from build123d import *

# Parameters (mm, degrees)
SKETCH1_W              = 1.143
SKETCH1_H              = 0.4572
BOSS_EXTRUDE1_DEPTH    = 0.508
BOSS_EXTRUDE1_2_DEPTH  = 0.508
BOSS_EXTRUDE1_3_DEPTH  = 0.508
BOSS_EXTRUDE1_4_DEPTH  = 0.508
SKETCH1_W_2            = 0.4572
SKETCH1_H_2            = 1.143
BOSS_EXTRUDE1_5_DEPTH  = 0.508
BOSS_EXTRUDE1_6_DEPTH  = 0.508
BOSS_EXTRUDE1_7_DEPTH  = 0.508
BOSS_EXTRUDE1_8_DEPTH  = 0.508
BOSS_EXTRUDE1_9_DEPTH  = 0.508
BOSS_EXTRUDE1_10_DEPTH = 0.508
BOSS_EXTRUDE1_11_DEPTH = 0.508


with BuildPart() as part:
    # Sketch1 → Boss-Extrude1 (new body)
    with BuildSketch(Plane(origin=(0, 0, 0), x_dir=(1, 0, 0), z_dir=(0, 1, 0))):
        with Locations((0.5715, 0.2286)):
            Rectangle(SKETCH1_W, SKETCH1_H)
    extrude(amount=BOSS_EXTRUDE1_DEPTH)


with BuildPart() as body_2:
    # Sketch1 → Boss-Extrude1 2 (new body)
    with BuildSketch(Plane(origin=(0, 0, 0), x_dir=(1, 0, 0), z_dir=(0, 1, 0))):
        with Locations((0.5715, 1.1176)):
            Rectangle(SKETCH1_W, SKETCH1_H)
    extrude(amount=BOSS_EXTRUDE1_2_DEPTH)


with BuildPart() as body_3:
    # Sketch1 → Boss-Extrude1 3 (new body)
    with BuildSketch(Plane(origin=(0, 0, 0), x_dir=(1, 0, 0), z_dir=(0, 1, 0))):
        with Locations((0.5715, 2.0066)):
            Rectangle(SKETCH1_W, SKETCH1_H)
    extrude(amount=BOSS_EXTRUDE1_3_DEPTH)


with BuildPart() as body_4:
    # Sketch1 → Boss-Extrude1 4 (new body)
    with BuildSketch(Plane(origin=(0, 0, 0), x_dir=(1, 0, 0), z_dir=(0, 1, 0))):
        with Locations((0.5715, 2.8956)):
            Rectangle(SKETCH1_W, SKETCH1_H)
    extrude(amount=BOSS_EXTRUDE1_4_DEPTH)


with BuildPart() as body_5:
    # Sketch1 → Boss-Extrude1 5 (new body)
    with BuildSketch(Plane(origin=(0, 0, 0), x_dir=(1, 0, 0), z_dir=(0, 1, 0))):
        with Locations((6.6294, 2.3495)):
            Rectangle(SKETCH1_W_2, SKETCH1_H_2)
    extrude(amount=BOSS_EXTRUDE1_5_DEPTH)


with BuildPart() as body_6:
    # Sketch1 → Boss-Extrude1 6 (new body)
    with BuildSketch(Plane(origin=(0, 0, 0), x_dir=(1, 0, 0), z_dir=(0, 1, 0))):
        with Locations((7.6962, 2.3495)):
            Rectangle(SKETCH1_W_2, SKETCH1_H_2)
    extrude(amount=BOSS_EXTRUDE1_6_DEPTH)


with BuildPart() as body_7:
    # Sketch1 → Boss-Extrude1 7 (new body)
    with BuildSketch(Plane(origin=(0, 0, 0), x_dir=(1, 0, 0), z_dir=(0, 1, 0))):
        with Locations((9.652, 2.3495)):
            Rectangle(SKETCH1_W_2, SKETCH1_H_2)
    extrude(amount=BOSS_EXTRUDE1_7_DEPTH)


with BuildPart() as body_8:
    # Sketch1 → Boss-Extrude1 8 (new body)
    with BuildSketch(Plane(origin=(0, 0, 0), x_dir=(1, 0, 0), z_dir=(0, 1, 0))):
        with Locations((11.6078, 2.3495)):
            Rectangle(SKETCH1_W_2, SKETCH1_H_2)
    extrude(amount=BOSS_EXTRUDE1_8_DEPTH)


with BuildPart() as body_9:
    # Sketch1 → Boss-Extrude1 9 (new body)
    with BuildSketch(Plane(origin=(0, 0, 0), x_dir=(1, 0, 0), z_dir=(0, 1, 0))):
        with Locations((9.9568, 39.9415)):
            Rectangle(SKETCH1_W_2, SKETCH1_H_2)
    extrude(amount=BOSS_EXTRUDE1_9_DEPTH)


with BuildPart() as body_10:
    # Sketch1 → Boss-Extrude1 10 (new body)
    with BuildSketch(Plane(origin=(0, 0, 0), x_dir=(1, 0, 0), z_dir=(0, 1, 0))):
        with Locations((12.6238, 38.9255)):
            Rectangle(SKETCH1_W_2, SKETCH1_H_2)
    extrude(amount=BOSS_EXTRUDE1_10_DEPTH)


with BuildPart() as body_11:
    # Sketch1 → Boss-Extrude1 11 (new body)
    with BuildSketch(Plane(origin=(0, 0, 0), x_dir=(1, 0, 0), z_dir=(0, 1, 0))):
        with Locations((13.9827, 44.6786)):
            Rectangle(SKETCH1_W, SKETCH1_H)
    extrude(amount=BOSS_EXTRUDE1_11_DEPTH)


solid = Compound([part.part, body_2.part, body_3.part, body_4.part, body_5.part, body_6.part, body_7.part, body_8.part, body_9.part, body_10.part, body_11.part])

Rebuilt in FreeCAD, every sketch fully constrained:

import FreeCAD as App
import Part
import Sketcher

V = App.Vector
Q = App.Units.Quantity

doc = App.newDocument("Part")
body = doc.addObject("PartDesign::Body", "Body")

# Sketch on XZ plane
sketch1 = doc.addObject("Sketcher::SketchObject", "Sketch")
body.addObject(sketch1)
sketch1.AttachmentSupport = (doc.XZ_Plane, [""])
sketch1.MapMode = "FlatFace"
sketch1.addGeometry(Part.LineSegment(V(0, -0.46, 0), V(0, 0, 0)), False)
sketch1.addGeometry(Part.LineSegment(V(0, 0, 0), V(1.14, 0, 0)), False)
sketch1.addGeometry(Part.LineSegment(V(1.14, 0, 0), V(1.14, -0.46, 0)), False)
sketch1.addGeometry(Part.LineSegment(V(1.14, -0.46, 0), V(0, -0.46, 0)), False)
sketch1.addConstraint(Sketcher.Constraint("Coincident", 0, 2, 1, 1))
sketch1.addConstraint(Sketcher.Constraint("Coincident", 1, 2, 2, 1))
sketch1.addConstraint(Sketcher.Constraint("Coincident", 2, 2, 3, 1))
sketch1.addConstraint(Sketcher.Constraint("Coincident", 3, 2, 0, 1))
sketch1.addConstraint(Sketcher.Constraint("Vertical", 0))
sketch1.addConstraint(Sketcher.Constraint("Horizontal", 1))
sketch1.addConstraint(Sketcher.Constraint("Vertical", 2))
sketch1.addConstraint(Sketcher.Constraint("Horizontal", 3))
sketch1.addConstraint(Sketcher.Constraint("Coincident", 0, 2, -1, 1))
sketch1.addConstraint(Sketcher.Constraint("DistanceX", 1, 1, 1, 2, Q("0.045 in")))
sketch1.addConstraint(Sketcher.Constraint("DistanceY", 0, 1, 0, 2, Q("0.018 in")))
pad1 = doc.addObject("PartDesign::Pad", "Pad")
body.addObject(pad1)
pad1.Profile = sketch1
pad1.Length = Q("0.02 in")
pad1.Reversed = True
body2 = doc.addObject("PartDesign::Body", "Body001")

# Sketch on XZ plane
sketch2 = doc.addObject("Sketcher::SketchObject", "Sketch001")
body2.addObject(sketch2)
sketch2.AttachmentSupport = (doc.getObject("XZ_Plane001"), [""])
sketch2.MapMode = "FlatFace"
sketch2.addGeometry(Part.LineSegment(V(0, -1.35, 0), V(0, -0.89, 0)), False)
sketch2.addGeometry(Part.LineSegment(V(0, -0.89, 0), V(1.14, -0.89, 0)), False)
sketch2.addGeometry(Part.LineSegment(V(1.14, -0.89, 0), V(1.14, -1.35, 0)), False)
sketch2.addGeometry(Part.LineSegment(V(1.14, -1.35, 0), V(0, -1.35, 0)), False)
sketch2.addConstraint(Sketcher.Constraint("Coincident", 0, 2, 1, 1))
sketch2.addConstraint(Sketcher.Constraint("Coincident", 1, 2, 2, 1))
sketch2.addConstraint(Sketcher.Constraint("Coincident", 2, 2, 3, 1))
sketch2.addConstraint(Sketcher.Constraint("Coincident", 3, 2, 0, 1))
sketch2.addConstraint(Sketcher.Constraint("Vertical", 0))
sketch2.addConstraint(Sketcher.Constraint("Horizontal", 1))
sketch2.addConstraint(Sketcher.Constraint("Vertical", 2))
sketch2.addConstraint(Sketcher.Constraint("Horizontal", 3))
sketch2.addConstraint(Sketcher.Constraint("PointOnObject", 0, 2, -2))
sketch2.addConstraint(Sketcher.Constraint("DistanceX", 1, 1, 1, 2, Q("0.045 in")))
sketch2.addConstraint(Sketcher.Constraint("DistanceY", 0, 1, 0, 2, Q("0.018 in")))
sketch2.addConstraint(Sketcher.Constraint("DistanceY", 0, 2, -1, 1, Q("0.035 in")))
pad2 = doc.addObject("PartDesign::Pad", "Pad001")
body2.addObject(pad2)
pad2.Profile = sketch2
pad2.Length = Q("0.02 in")
pad2.Reversed = True
body3 = doc.addObject("PartDesign::Body", "Body002")

# Sketch on XZ plane
sketch3 = doc.addObject("Sketcher::SketchObject", "Sketch002")
body3.addObject(sketch3)
sketch3.AttachmentSupport = (doc.getObject("XZ_Plane002"), [""])
sketch3.MapMode = "FlatFace"
sketch3.addGeometry(Part.LineSegment(V(0, -2.24, 0), V(0, -1.78, 0)), False)
sketch3.addGeometry(Part.LineSegment(V(0, -1.78, 0), V(1.14, -1.78, 0)), False)
sketch3.addGeometry(Part.LineSegment(V(1.14, -1.78, 0), V(1.14, -2.24, 0)), False)
sketch3.addGeometry(Part.LineSegment(V(1.14, -2.24, 0), V(0, -2.24, 0)), False)
sketch3.addConstraint(Sketcher.Constraint("Coincident", 0, 2, 1, 1))
sketch3.addConstraint(Sketcher.Constraint("Coincident", 1, 2, 2, 1))
sketch3.addConstraint(Sketcher.Constraint("Coincident", 2, 2, 3, 1))
sketch3.addConstraint(Sketcher.Constraint("Coincident", 3, 2, 0, 1))
sketch3.addConstraint(Sketcher.Constraint("Vertical", 0))
sketch3.addConstraint(Sketcher.Constraint("Horizontal", 1))
sketch3.addConstraint(Sketcher.Constraint("Vertical", 2))
sketch3.addConstraint(Sketcher.Constraint("Horizontal", 3))
sketch3.addConstraint(Sketcher.Constraint("PointOnObject", 0, 2, -2))
sketch3.addConstraint(Sketcher.Constraint("DistanceX", 1, 1, 1, 2, Q("0.045 in")))
sketch3.addConstraint(Sketcher.Constraint("DistanceY", 0, 1, 0, 2, Q("0.018 in")))
sketch3.addConstraint(Sketcher.Constraint("DistanceY", 0, 2, -1, 1, Q("0.07 in")))
pad3 = doc.addObject("PartDesign::Pad", "Pad002")
body3.addObject(pad3)
pad3.Profile = sketch3
pad3.Length = Q("0.02 in")
pad3.Reversed = True
body4 = doc.addObject("PartDesign::Body", "Body003")

# Sketch on XZ plane
sketch4 = doc.addObject("Sketcher::SketchObject", "Sketch003")
body4.addObject(sketch4)
sketch4.AttachmentSupport = (doc.getObject("XZ_Plane003"), [""])
sketch4.MapMode = "FlatFace"
sketch4.addGeometry(Part.LineSegment(V(0, -3.12, 0), V(0, -2.67, 0)), False)
sketch4.addGeometry(Part.LineSegment(V(0, -2.67, 0), V(1.14, -2.67, 0)), False)
sketch4.addGeometry(Part.LineSegment(V(1.14, -2.67, 0), V(1.14, -3.12, 0)), False)
sketch4.addGeometry(Part.LineSegment(V(1.14, -3.12, 0), V(0, -3.12, 0)), False)
sketch4.addConstraint(Sketcher.Constraint("Coincident", 0, 2, 1, 1))
sketch4.addConstraint(Sketcher.Constraint("Coincident", 1, 2, 2, 1))
sketch4.addConstraint(Sketcher.Constraint("Coincident", 2, 2, 3, 1))
sketch4.addConstraint(Sketcher.Constraint("Coincident", 3, 2, 0, 1))
sketch4.addConstraint(Sketcher.Constraint("Vertical", 0))
sketch4.addConstraint(Sketcher.Constraint("Horizontal", 1))
sketch4.addConstraint(Sketcher.Constraint("Vertical", 2))
sketch4.addConstraint(Sketcher.Constraint("Horizontal", 3))
sketch4.addConstraint(Sketcher.Constraint("PointOnObject", 0, 2, -2))
sketch4.addConstraint(Sketcher.Constraint("DistanceX", 1, 1, 1, 2, Q("0.045 in")))
sketch4.addConstraint(Sketcher.Constraint("DistanceY", 0, 1, 0, 2, Q("0.018 in")))
sketch4.addConstraint(Sketcher.Constraint("DistanceY", 0, 2, -1, 1, Q("0.105 in")))
pad4 = doc.addObject("PartDesign::Pad", "Pad003")
body4.addObject(pad4)
pad4.Profile = sketch4
pad4.Length = Q("0.02 in")
pad4.Reversed = True
body5 = doc.addObject("PartDesign::Body", "Body004")

# Sketch on XZ plane
sketch5 = doc.addObject("Sketcher::SketchObject", "Sketch004")
body5.addObject(sketch5)
sketch5.AttachmentSupport = (doc.getObject("XZ_Plane004"), [""])
sketch5.MapMode = "FlatFace"
sketch5.addGeometry(Part.LineSegment(V(6.4, -2.92, 0), V(6.4, -1.78, 0)), False)
sketch5.addGeometry(Part.LineSegment(V(6.4, -1.78, 0), V(6.86, -1.78, 0)), False)
sketch5.addGeometry(Part.LineSegment(V(6.86, -1.78, 0), V(6.86, -2.92, 0)), False)
sketch5.addGeometry(Part.LineSegment(V(6.86, -2.92, 0), V(6.4, -2.92, 0)), False)
sketch5.addConstraint(Sketcher.Constraint("Coincident", 0, 2, 1, 1))
sketch5.addConstraint(Sketcher.Constraint("Coincident", 1, 2, 2, 1))
sketch5.addConstraint(Sketcher.Constraint("Coincident", 2, 2, 3, 1))
sketch5.addConstraint(Sketcher.Constraint("Coincident", 3, 2, 0, 1))
sketch5.addConstraint(Sketcher.Constraint("Vertical", 0))
sketch5.addConstraint(Sketcher.Constraint("Horizontal", 1))
sketch5.addConstraint(Sketcher.Constraint("Vertical", 2))
sketch5.addConstraint(Sketcher.Constraint("Horizontal", 3))
sketch5.addConstraint(Sketcher.Constraint("DistanceX", 1, 1, 1, 2, Q("0.018 in")))
sketch5.addConstraint(Sketcher.Constraint("DistanceY", 0, 1, 0, 2, Q("0.045 in")))
sketch5.addConstraint(Sketcher.Constraint("DistanceY", 0, 2, -1, 1, Q("0.07 in")))
sketch5.addConstraint(Sketcher.Constraint("DistanceX", -1, 1, 1, 2, Q("0.27 in")))
pad5 = doc.addObject("PartDesign::Pad", "Pad004")
body5.addObject(pad5)
pad5.Profile = sketch5
pad5.Length = Q("0.02 in")
pad5.Reversed = True
body6 = doc.addObject("PartDesign::Body", "Body005")

# Sketch on XZ plane
sketch6 = doc.addObject("Sketcher::SketchObject", "Sketch005")
body6.addObject(sketch6)
sketch6.AttachmentSupport = (doc.getObject("XZ_Plane005"), [""])
sketch6.MapMode = "FlatFace"
sketch6.addGeometry(Part.LineSegment(V(7.47, -2.92, 0), V(7.47, -1.78, 0)), False)
sketch6.addGeometry(Part.LineSegment(V(7.47, -1.78, 0), V(7.92, -1.78, 0)), False)
sketch6.addGeometry(Part.LineSegment(V(7.92, -1.78, 0), V(7.92, -2.92, 0)), False)
sketch6.addGeometry(Part.LineSegment(V(7.92, -2.92, 0), V(7.47, -2.92, 0)), False)
sketch6.addConstraint(Sketcher.Constraint("Coincident", 0, 2, 1, 1))
sketch6.addConstraint(Sketcher.Constraint("Coincident", 1, 2, 2, 1))
sketch6.addConstraint(Sketcher.Constraint("Coincident", 2, 2, 3, 1))
sketch6.addConstraint(Sketcher.Constraint("Coincident", 3, 2, 0, 1))
sketch6.addConstraint(Sketcher.Constraint("Vertical", 0))
sketch6.addConstraint(Sketcher.Constraint("Horizontal", 1))
sketch6.addConstraint(Sketcher.Constraint("Vertical", 2))
sketch6.addConstraint(Sketcher.Constraint("Horizontal", 3))
sketch6.addConstraint(Sketcher.Constraint("DistanceX", 1, 1, 1, 2, Q("0.018 in")))
sketch6.addConstraint(Sketcher.Constraint("DistanceY", 0, 1, 0, 2, Q("0.045 in")))
sketch6.addConstraint(Sketcher.Constraint("DistanceY", 0, 2, -1, 1, Q("0.07 in")))
sketch6.addConstraint(Sketcher.Constraint("DistanceX", -1, 1, 0, 2, Q("0.294 in")))
pad6 = doc.addObject("PartDesign::Pad", "Pad005")
body6.addObject(pad6)
pad6.Profile = sketch6
pad6.Length = Q("0.02 in")
pad6.Reversed = True
body7 = doc.addObject("PartDesign::Body", "Body006")

# Sketch on XZ plane
sketch7 = doc.addObject("Sketcher::SketchObject", "Sketch006")
body7.addObject(sketch7)
sketch7.AttachmentSupport = (doc.getObject("XZ_Plane006"), [""])
sketch7.MapMode = "FlatFace"
sketch7.addGeometry(Part.LineSegment(V(9.42, -2.92, 0), V(9.42, -1.78, 0)), False)
sketch7.addGeometry(Part.LineSegment(V(9.42, -1.78, 0), V(9.88, -1.78, 0)), False)
sketch7.addGeometry(Part.LineSegment(V(9.88, -1.78, 0), V(9.88, -2.92, 0)), False)
sketch7.addGeometry(Part.LineSegment(V(9.88, -2.92, 0), V(9.42, -2.92, 0)), False)
sketch7.addConstraint(Sketcher.Constraint("Coincident", 0, 2, 1, 1))
sketch7.addConstraint(Sketcher.Constraint("Coincident", 1, 2, 2, 1))
sketch7.addConstraint(Sketcher.Constraint("Coincident", 2, 2, 3, 1))
sketch7.addConstraint(Sketcher.Constraint("Coincident", 3, 2, 0, 1))
sketch7.addConstraint(Sketcher.Constraint("Vertical", 0))
sketch7.addConstraint(Sketcher.Constraint("Horizontal", 1))
sketch7.addConstraint(Sketcher.Constraint("Vertical", 2))
sketch7.addConstraint(Sketcher.Constraint("Horizontal", 3))
sketch7.addConstraint(Sketcher.Constraint("DistanceX", 1, 1, 1, 2, Q("0.018 in")))
sketch7.addConstraint(Sketcher.Constraint("DistanceY", 0, 1, 0, 2, Q("0.045 in")))
sketch7.addConstraint(Sketcher.Constraint("DistanceY", 0, 2, -1, 1, Q("0.07 in")))
sketch7.addConstraint(Sketcher.Constraint("DistanceX", -1, 1, 0, 2, Q("0.371 in")))
pad7 = doc.addObject("PartDesign::Pad", "Pad006")
body7.addObject(pad7)
pad7.Profile = sketch7
pad7.Length = Q("0.02 in")
pad7.Reversed = True
body8 = doc.addObject("PartDesign::Body", "Body007")

# Sketch on XZ plane
sketch8 = doc.addObject("Sketcher::SketchObject", "Sketch007")
body8.addObject(sketch8)
sketch8.AttachmentSupport = (doc.getObject("XZ_Plane007"), [""])
sketch8.MapMode = "FlatFace"
sketch8.addGeometry(Part.LineSegment(V(11.38, -2.92, 0), V(11.38, -1.78, 0)), False)
sketch8.addGeometry(Part.LineSegment(V(11.38, -1.78, 0), V(11.84, -1.78, 0)), False)
sketch8.addGeometry(Part.LineSegment(V(11.84, -1.78, 0), V(11.84, -2.92, 0)), False)
sketch8.addGeometry(Part.LineSegment(V(11.84, -2.92, 0), V(11.38, -2.92, 0)), False)
sketch8.addConstraint(Sketcher.Constraint("Coincident", 0, 2, 1, 1))
sketch8.addConstraint(Sketcher.Constraint("Coincident", 1, 2, 2, 1))
sketch8.addConstraint(Sketcher.Constraint("Coincident", 2, 2, 3, 1))
sketch8.addConstraint(Sketcher.Constraint("Coincident", 3, 2, 0, 1))
sketch8.addConstraint(Sketcher.Constraint("Vertical", 0))
sketch8.addConstraint(Sketcher.Constraint("Horizontal", 1))
sketch8.addConstraint(Sketcher.Constraint("Vertical", 2))
sketch8.addConstraint(Sketcher.Constraint("Horizontal", 3))
sketch8.addConstraint(Sketcher.Constraint("DistanceX", 1, 1, 1, 2, Q("0.018 in")))
sketch8.addConstraint(Sketcher.Constraint("DistanceY", 0, 1, 0, 2, Q("0.045 in")))
sketch8.addConstraint(Sketcher.Constraint("DistanceY", 0, 2, -1, 1, Q("0.07 in")))
sketch8.addConstraint(Sketcher.Constraint("DistanceX", -1, 1, 0, 2, Q("0.448 in")))
pad8 = doc.addObject("PartDesign::Pad", "Pad007")
body8.addObject(pad8)
pad8.Profile = sketch8
pad8.Length = Q("0.02 in")
pad8.Reversed = True
body9 = doc.addObject("PartDesign::Body", "Body008")

# Sketch on XZ plane
sketch9 = doc.addObject("Sketcher::SketchObject", "Sketch008")
body9.addObject(sketch9)
sketch9.AttachmentSupport = (doc.getObject("XZ_Plane008"), [""])
sketch9.MapMode = "FlatFace"
sketch9.addGeometry(Part.LineSegment(V(9.73, -40.51, 0), V(9.73, -39.37, 0)), False)
sketch9.addGeometry(Part.LineSegment(V(9.73, -39.37, 0), V(10.19, -39.37, 0)), False)
sketch9.addGeometry(Part.LineSegment(V(10.19, -39.37, 0), V(10.19, -40.51, 0)), False)
sketch9.addGeometry(Part.LineSegment(V(10.19, -40.51, 0), V(9.73, -40.51, 0)), False)
sketch9.addConstraint(Sketcher.Constraint("Coincident", 0, 2, 1, 1))
sketch9.addConstraint(Sketcher.Constraint("Coincident", 1, 2, 2, 1))
sketch9.addConstraint(Sketcher.Constraint("Coincident", 2, 2, 3, 1))
sketch9.addConstraint(Sketcher.Constraint("Coincident", 3, 2, 0, 1))
sketch9.addConstraint(Sketcher.Constraint("Vertical", 0))
sketch9.addConstraint(Sketcher.Constraint("Horizontal", 1))
sketch9.addConstraint(Sketcher.Constraint("Vertical", 2))
sketch9.addConstraint(Sketcher.Constraint("Horizontal", 3))
sketch9.addConstraint(Sketcher.Constraint("DistanceX", 1, 1, 1, 2, Q("0.018 in")))
sketch9.addConstraint(Sketcher.Constraint("DistanceY", 0, 1, 0, 2, Q("0.045 in")))
sketch9.addConstraint(Sketcher.Constraint("DistanceY", 0, 2, -1, 1, Q("1.55 in")))
sketch9.addConstraint(Sketcher.Constraint("DistanceX", -1, 1, 0, 2, Q("0.383 in")))
pad9 = doc.addObject("PartDesign::Pad", "Pad008")
body9.addObject(pad9)
pad9.Profile = sketch9
pad9.Length = Q("0.02 in")
pad9.Reversed = True
body10 = doc.addObject("PartDesign::Body", "Body009")

# Sketch on XZ plane
sketch10 = doc.addObject("Sketcher::SketchObject", "Sketch009")
body10.addObject(sketch10)
sketch10.AttachmentSupport = (doc.getObject("XZ_Plane009"), [""])
sketch10.MapMode = "FlatFace"
sketch10.addGeometry(Part.LineSegment(V(12.4, -39.5, 0), V(12.4, -38.35, 0)), False)
sketch10.addGeometry(Part.LineSegment(V(12.4, -38.35, 0), V(12.85, -38.35, 0)), False)
sketch10.addGeometry(Part.LineSegment(V(12.85, -38.35, 0), V(12.85, -39.5, 0)), False)
sketch10.addGeometry(Part.LineSegment(V(12.85, -39.5, 0), V(12.4, -39.5, 0)), False)
sketch10.addConstraint(Sketcher.Constraint("Coincident", 0, 2, 1, 1))
sketch10.addConstraint(Sketcher.Constraint("Coincident", 1, 2, 2, 1))
sketch10.addConstraint(Sketcher.Constraint("Coincident", 2, 2, 3, 1))
sketch10.addConstraint(Sketcher.Constraint("Coincident", 3, 2, 0, 1))
sketch10.addConstraint(Sketcher.Constraint("Vertical", 0))
sketch10.addConstraint(Sketcher.Constraint("Horizontal", 1))
sketch10.addConstraint(Sketcher.Constraint("Vertical", 2))
sketch10.addConstraint(Sketcher.Constraint("Horizontal", 3))
sketch10.addConstraint(Sketcher.Constraint("DistanceX", 1, 1, 1, 2, Q("0.018 in")))
sketch10.addConstraint(Sketcher.Constraint("DistanceY", 0, 1, 0, 2, Q("0.045 in")))
sketch10.addConstraint(Sketcher.Constraint("DistanceY", 0, 2, -1, 1, Q("1.51 in")))
sketch10.addConstraint(Sketcher.Constraint("DistanceX", -1, 1, 0, 2, Q("0.488 in")))
pad10 = doc.addObject("PartDesign::Pad", "Pad009")
body10.addObject(pad10)
pad10.Profile = sketch10
pad10.Length = Q("0.02 in")
pad10.Reversed = True
body11 = doc.addObject("PartDesign::Body", "Body010")

# Sketch on XZ plane
sketch11 = doc.addObject("Sketcher::SketchObject", "Sketch010")
body11.addObject(sketch11)
sketch11.AttachmentSupport = (doc.getObject("XZ_Plane010"), [""])
sketch11.MapMode = "FlatFace"
sketch11.addGeometry(Part.LineSegment(V(13.41, -44.91, 0), V(13.41, -44.45, 0)), False)
sketch11.addGeometry(Part.LineSegment(V(13.41, -44.45, 0), V(14.55, -44.45, 0)), False)
sketch11.addGeometry(Part.LineSegment(V(14.55, -44.45, 0), V(14.55, -44.91, 0)), False)
sketch11.addGeometry(Part.LineSegment(V(14.55, -44.91, 0), V(13.41, -44.91, 0)), False)
sketch11.addConstraint(Sketcher.Constraint("Coincident", 0, 2, 1, 1))
sketch11.addConstraint(Sketcher.Constraint("Coincident", 1, 2, 2, 1))
sketch11.addConstraint(Sketcher.Constraint("Coincident", 2, 2, 3, 1))
sketch11.addConstraint(Sketcher.Constraint("Coincident", 3, 2, 0, 1))
sketch11.addConstraint(Sketcher.Constraint("Vertical", 0))
sketch11.addConstraint(Sketcher.Constraint("Horizontal", 1))
sketch11.addConstraint(Sketcher.Constraint("Vertical", 2))
sketch11.addConstraint(Sketcher.Constraint("Horizontal", 3))
sketch11.addConstraint(Sketcher.Constraint("DistanceX", 1, 1, 1, 2, Q("0.045 in")))
sketch11.addConstraint(Sketcher.Constraint("DistanceY", 0, 1, 0, 2, Q("0.018 in")))
sketch11.addConstraint(Sketcher.Constraint("DistanceY", 0, 2, -1, 1, Q("1.75 in")))
sketch11.addConstraint(Sketcher.Constraint("DistanceX", -1, 1, 0, 2, Q("0.528 in")))
pad11 = doc.addObject("PartDesign::Pad", "Pad010")
body11.addObject(pad11)
pad11.Profile = sketch11
pad11.Length = Q("0.02 in")
pad11.Reversed = True

doc.recompute()
